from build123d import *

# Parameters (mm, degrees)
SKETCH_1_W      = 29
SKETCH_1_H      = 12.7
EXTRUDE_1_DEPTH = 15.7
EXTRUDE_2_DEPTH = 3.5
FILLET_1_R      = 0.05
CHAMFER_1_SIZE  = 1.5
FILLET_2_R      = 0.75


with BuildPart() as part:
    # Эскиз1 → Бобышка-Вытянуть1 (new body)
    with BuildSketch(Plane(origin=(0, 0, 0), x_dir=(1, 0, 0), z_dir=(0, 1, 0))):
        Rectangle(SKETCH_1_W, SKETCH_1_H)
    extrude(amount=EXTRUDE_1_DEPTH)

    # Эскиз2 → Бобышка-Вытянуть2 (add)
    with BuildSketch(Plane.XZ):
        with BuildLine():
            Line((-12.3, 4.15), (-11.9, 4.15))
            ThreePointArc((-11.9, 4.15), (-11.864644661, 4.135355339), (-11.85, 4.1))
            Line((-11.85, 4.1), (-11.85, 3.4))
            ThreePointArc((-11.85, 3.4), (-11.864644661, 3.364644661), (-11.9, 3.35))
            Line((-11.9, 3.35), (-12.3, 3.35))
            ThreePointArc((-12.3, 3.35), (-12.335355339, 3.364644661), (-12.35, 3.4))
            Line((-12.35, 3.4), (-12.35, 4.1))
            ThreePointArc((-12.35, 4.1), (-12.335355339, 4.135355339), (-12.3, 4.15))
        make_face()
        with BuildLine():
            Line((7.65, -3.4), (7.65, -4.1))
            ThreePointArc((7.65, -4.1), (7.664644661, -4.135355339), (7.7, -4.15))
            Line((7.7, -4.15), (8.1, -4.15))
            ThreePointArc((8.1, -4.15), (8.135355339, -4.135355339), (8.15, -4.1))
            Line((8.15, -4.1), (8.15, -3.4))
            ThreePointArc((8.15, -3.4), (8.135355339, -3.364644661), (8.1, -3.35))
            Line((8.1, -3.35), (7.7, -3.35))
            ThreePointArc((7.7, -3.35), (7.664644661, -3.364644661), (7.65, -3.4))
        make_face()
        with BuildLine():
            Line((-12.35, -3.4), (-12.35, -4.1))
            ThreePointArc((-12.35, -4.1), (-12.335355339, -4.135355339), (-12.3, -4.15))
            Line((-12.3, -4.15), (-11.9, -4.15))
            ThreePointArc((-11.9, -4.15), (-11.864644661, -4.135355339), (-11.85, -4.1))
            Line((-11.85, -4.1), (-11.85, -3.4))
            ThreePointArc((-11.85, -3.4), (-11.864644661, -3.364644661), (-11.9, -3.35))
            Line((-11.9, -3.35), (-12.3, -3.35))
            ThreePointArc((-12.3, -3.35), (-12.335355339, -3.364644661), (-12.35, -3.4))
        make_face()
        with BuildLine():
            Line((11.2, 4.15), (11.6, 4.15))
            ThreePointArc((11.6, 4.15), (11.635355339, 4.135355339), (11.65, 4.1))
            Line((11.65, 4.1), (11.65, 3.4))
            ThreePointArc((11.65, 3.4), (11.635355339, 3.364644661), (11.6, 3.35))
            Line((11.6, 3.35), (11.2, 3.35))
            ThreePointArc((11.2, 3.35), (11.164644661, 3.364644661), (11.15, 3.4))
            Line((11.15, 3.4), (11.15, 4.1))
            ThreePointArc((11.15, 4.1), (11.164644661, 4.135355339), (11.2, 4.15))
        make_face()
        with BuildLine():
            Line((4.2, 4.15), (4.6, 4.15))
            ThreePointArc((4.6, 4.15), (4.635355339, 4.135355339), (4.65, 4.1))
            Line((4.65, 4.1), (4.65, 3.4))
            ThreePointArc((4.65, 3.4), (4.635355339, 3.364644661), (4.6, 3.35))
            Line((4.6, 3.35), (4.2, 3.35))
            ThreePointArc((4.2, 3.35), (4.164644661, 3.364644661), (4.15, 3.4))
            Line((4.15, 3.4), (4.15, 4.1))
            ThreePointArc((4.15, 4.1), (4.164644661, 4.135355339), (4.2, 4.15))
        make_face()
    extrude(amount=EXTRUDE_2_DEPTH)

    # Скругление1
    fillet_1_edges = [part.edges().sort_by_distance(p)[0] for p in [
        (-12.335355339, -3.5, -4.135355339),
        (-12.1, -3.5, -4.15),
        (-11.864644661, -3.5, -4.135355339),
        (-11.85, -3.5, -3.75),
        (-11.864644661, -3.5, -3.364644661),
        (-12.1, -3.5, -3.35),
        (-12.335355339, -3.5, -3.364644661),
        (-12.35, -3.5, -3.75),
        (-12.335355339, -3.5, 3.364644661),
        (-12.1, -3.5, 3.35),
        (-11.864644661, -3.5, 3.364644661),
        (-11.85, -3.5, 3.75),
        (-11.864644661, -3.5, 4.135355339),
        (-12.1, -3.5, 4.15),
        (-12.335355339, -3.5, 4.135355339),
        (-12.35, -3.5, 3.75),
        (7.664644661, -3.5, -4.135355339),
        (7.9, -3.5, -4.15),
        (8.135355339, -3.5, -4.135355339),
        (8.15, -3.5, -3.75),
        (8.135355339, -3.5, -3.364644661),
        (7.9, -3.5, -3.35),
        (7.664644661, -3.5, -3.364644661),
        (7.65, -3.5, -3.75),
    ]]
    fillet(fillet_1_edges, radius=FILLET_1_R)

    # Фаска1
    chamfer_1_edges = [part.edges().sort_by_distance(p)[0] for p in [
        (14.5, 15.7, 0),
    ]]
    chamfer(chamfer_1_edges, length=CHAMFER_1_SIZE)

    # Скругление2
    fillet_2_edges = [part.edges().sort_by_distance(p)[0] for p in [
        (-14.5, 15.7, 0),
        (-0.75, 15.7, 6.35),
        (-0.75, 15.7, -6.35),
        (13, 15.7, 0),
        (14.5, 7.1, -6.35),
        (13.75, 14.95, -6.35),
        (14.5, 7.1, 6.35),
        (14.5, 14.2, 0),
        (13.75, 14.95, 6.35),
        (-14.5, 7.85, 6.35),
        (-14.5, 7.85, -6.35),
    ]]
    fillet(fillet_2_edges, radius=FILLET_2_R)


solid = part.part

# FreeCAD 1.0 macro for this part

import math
import FreeCAD as App
import Part
import Sketcher

V = App.Vector
Q = App.Units.Quantity


def edges_at(feature, points):
    """Names of the edges that pass closest to the given points."""
    edges = feature.Shape.Edges
    near = lambda p: min(range(len(edges)), key=lambda i: edges[i].distToShape(Part.Vertex(*p))[0])
    return sorted({f"Edge{near(p) + 1}" for p in points})

doc = App.newDocument("Part")
body = doc.addObject("PartDesign::Body", "Body")

# Sketch on XZ plane
sketch1 = body.newObject("Sketcher::SketchObject", "Sketch")
sketch1.AttachmentSupport = (doc.getObject("XZ_Plane"), [""])
sketch1.MapMode = "FlatFace"
sketch1.addGeometry([
    Part.LineSegment(V(-14.5, -6.35, 0), V(-14.5, 6.35, 0)),
    Part.LineSegment(V(-14.5, 6.35, 0), V(14.5, 6.35, 0)),
    Part.LineSegment(V(14.5, 6.35, 0), V(14.5, -6.35, 0)),
    Part.LineSegment(V(14.5, -6.35, 0), V(-14.5, -6.35, 0)),
], False)
sketch1.addConstraint([
    Sketcher.Constraint("Coincident", 0, 2, 1, 1),
    Sketcher.Constraint("Coincident", 1, 2, 2, 1),
    Sketcher.Constraint("Coincident", 2, 2, 3, 1),
    Sketcher.Constraint("Coincident", 3, 2, 0, 1),
    Sketcher.Constraint("Vertical", 0),
    Sketcher.Constraint("Horizontal", 1),
    Sketcher.Constraint("Vertical", 2),
    Sketcher.Constraint("Horizontal", 3),
    Sketcher.Constraint("Symmetric", 0, 2, 2, 2, -1, 1),
    Sketcher.Constraint("DistanceX", 1, 1, 1, 2, Q("29 mm")),
    Sketcher.Constraint("DistanceY", 0, 1, 0, 2, Q("12.7 mm")),
])
pad1 = body.newObject("PartDesign::Pad", "Pad")
pad1.Profile = sketch1
pad1.Length = 15.7
pad1.Reversed = True

# Sketch on XZ plane
sketch2 = body.newObject("Sketcher::SketchObject", "Sketch001")
sketch2.AttachmentSupport = (doc.getObject("XZ_Plane"), [""])
sketch2.MapMode = "FlatFace"
sketch2.addGeometry([
    Part.LineSegment(V(-11.9, 4.15, 0), V(-12.3, 4.15, 0)),  # 0
    Part.ArcOfCircle(Part.Circle(V(-12.3, 4.1, 0), V(0, 0, 1), 0.05), math.radians(90), math.radians(180)),  # 1
    Part.LineSegment(V(-12.35, 4.1, 0), V(-12.35, 3.4, 0)),  # 2
    Part.ArcOfCircle(Part.Circle(V(-12.3, 3.4, 0), V(0, 0, 1), 0.05), math.radians(180), math.radians(270)),  # 3
    Part.LineSegment(V(-12.3, 3.35, 0), V(-11.9, 3.35, 0)),  # 4
    Part.ArcOfCircle(Part.Circle(V(-11.9, 3.4, 0), V(0, 0, 1), 0.05), math.radians(-90), math.radians(0)),  # 5
    Part.LineSegment(V(-11.85, 3.4, 0), V(-11.85, 4.1, 0)),  # 6
    Part.ArcOfCircle(Part.Circle(V(-11.9, 4.1, 0), V(0, 0, 1), 0.05), math.radians(0), math.radians(90)),  # 7
    Part.LineSegment(V(7.65, -3.4, 0), V(7.65, -4.1, 0)),  # 8
    Part.ArcOfCircle(Part.Circle(V(7.7, -4.1, 0), V(0, 0, 1), 0.05), math.radians(180), math.radians(270)),  # 9
    Part.LineSegment(V(7.7, -4.15, 0), V(8.1, -4.15, 0)),  # 10
    Part.ArcOfCircle(Part.Circle(V(8.1, -4.1, 0), V(0, 0, 1), 0.05), math.radians(-90), math.radians(0)),  # 11
    Part.LineSegment(V(8.15, -4.1, 0), V(8.15, -3.4, 0)),  # 12
    Part.ArcOfCircle(Part.Circle(V(8.1, -3.4, 0), V(0, 0, 1), 0.05), math.radians(0), math.radians(90)),  # 13
    Part.LineSegment(V(8.1, -3.35, 0), V(7.7, -3.35, 0)),  # 14
    Part.ArcOfCircle(Part.Circle(V(7.7, -3.4, 0), V(0, 0, 1), 0.05), math.radians(90), math.radians(180)),  # 15
    Part.LineSegment(V(-12.35, -3.4, 0), V(-12.35, -4.1, 0)),  # 16
    Part.ArcOfCircle(Part.Circle(V(-12.3, -4.1, 0), V(0, 0, 1), 0.05), math.radians(180), math.radians(270)),  # 17
    Part.LineSegment(V(-12.3, -4.15, 0), V(-11.9, -4.15, 0)),  # 18
    Part.ArcOfCircle(Part.Circle(V(-11.9, -4.1, 0), V(0, 0, 1), 0.05), math.radians(-90), math.radians(0)),  # 19
    Part.LineSegment(V(-11.85, -4.1, 0), V(-11.85, -3.4, 0)),  # 20
    Part.ArcOfCircle(Part.Circle(V(-11.9, -3.4, 0), V(0, 0, 1), 0.05), math.radians(0), math.radians(90)),  # 21
    Part.LineSegment(V(-11.9, -3.35, 0), V(-12.3, -3.35, 0)),  # 22
    Part.ArcOfCircle(Part.Circle(V(-12.3, -3.4, 0), V(0, 0, 1), 0.05), math.radians(90), math.radians(180)),  # 23
    Part.LineSegment(V(11.6, 4.15, 0), V(11.2, 4.15, 0)),  # 24
    Part.ArcOfCircle(Part.Circle(V(11.2, 4.1, 0), V(0, 0, 1), 0.05), math.radians(90), math.radians(180)),  # 25
    Part.LineSegment(V(11.15, 4.1, 0), V(11.15, 3.4, 0)),  # 26
    Part.ArcOfCircle(Part.Circle(V(11.2, 3.4, 0), V(0, 0, 1), 0.05), math.radians(180), math.radians(270)),  # 27
    Part.LineSegment(V(11.2, 3.35, 0), V(11.6, 3.35, 0)),  # 28
    Part.ArcOfCircle(Part.Circle(V(11.6, 3.4, 0), V(0, 0, 1), 0.05), math.radians(-90), math.radians(0)),  # 29
    Part.LineSegment(V(11.65, 3.4, 0), V(11.65, 4.1, 0)),  # 30
    Part.ArcOfCircle(Part.Circle(V(11.6, 4.1, 0), V(0, 0, 1), 0.05), math.radians(0), math.radians(90)),  # 31
    Part.LineSegment(V(4.6, 4.15, 0), V(4.2, 4.15, 0)),  # 32
    Part.ArcOfCircle(Part.Circle(V(4.2, 4.1, 0), V(0, 0, 1), 0.05), math.radians(90), math.radians(180)),  # 33
    Part.LineSegment(V(4.15, 4.1, 0), V(4.15, 3.4, 0)),  # 34
    Part.ArcOfCircle(Part.Circle(V(4.2, 3.4, 0), V(0, 0, 1), 0.05), math.radians(180), math.radians(270)),  # 35
    Part.LineSegment(V(4.2, 3.35, 0), V(4.6, 3.35, 0)),  # 36
    Part.ArcOfCircle(Part.Circle(V(4.6, 3.4, 0), V(0, 0, 1), 0.05), math.radians(-90), math.radians(0)),  # 37
    Part.LineSegment(V(4.65, 3.4, 0), V(4.65, 4.1, 0)),  # 38
    Part.ArcOfCircle(Part.Circle(V(4.6, 4.1, 0), V(0, 0, 1), 0.05), math.radians(0), math.radians(90)),  # 39
], False)
sketch2.addConstraint([
    Sketcher.Constraint("Tangent", 0, 2, 1, 1),
    Sketcher.Constraint("Tangent", 1, 2, 2, 1),
    Sketcher.Constraint("Tangent", 2, 2, 3, 1),
    Sketcher.Constraint("Tangent", 3, 2, 4, 1),
    Sketcher.Constraint("Tangent", 4, 2, 5, 1),
    Sketcher.Constraint("Tangent", 5, 2, 6, 1),
    Sketcher.Constraint("Tangent", 6, 2, 7, 1),
    Sketcher.Constraint("Tangent", 7, 2, 0, 1),
    Sketcher.Constraint("Tangent", 8, 2, 9, 1),
    Sketcher.Constraint("Tangent", 9, 2, 10, 1),
    Sketcher.Constraint("Tangent", 10, 2, 11, 1),
    Sketcher.Constraint("Tangent", 11, 2, 12, 1),
    Sketcher.Constraint("Tangent", 12, 2, 13, 1),
    Sketcher.Constraint("Tangent", 13, 2, 14, 1),
    Sketcher.Constraint("Tangent", 14, 2, 15, 1),
    Sketcher.Constraint("Tangent", 15, 2, 8, 1),
    Sketcher.Constraint("Tangent", 16, 2, 17, 1),
    Sketcher.Constraint("Tangent", 17, 2, 18, 1),
    Sketcher.Constraint("Tangent", 18, 2, 19, 1),
    Sketcher.Constraint("Tangent", 19, 2, 20, 1),
    Sketcher.Constraint("Tangent", 20, 2, 21, 1),
    Sketcher.Constraint("Tangent", 21, 2, 22, 1),
    Sketcher.Constraint("Tangent", 22, 2, 23, 1),
    Sketcher.Constraint("Tangent", 23, 2, 16, 1),
    Sketcher.Constraint("Tangent", 24, 2, 25, 1),
    Sketcher.Constraint("Tangent", 25, 2, 26, 1),
    Sketcher.Constraint("Tangent", 26, 2, 27, 1),
    Sketcher.Constraint("Tangent", 27, 2, 28, 1),
    Sketcher.Constraint("Tangent", 28, 2, 29, 1),
    Sketcher.Constraint("Tangent", 29, 2, 30, 1),
    Sketcher.Constraint("Tangent", 30, 2, 31, 1),
    Sketcher.Constraint("Tangent", 31, 2, 24, 1),
    Sketcher.Constraint("Tangent", 32, 2, 33, 1),
    Sketcher.Constraint("Tangent", 33, 2, 34, 1),
    Sketcher.Constraint("Tangent", 34, 2, 35, 1),
    Sketcher.Constraint("Tangent", 35, 2, 36, 1),
    Sketcher.Constraint("Tangent", 36, 2, 37, 1),
    Sketcher.Constraint("Tangent", 37, 2, 38, 1),
    Sketcher.Constraint("Tangent", 38, 2, 39, 1),
    Sketcher.Constraint("Tangent", 39, 2, 32, 1),
    Sketcher.Constraint("Horizontal", 0),
    Sketcher.Constraint("Vertical", 2),
    Sketcher.Constraint("Horizontal", 4),
    Sketcher.Constraint("Vertical", 6),
    Sketcher.Constraint("Vertical", 8),
    Sketcher.Constraint("Horizontal", 10),
    Sketcher.Constraint("Vertical", 12),
    Sketcher.Constraint("Horizontal", 14),
    Sketcher.Constraint("Vertical", 16),
    Sketcher.Constraint("Horizontal", 18),
    Sketcher.Constraint("Vertical", 20),
    Sketcher.Constraint("Horizontal", 22),
    Sketcher.Constraint("Horizontal", 24),
    Sketcher.Constraint("Vertical", 26),
    Sketcher.Constraint("Horizontal", 28),
    Sketcher.Constraint("Vertical", 30),
    Sketcher.Constraint("Horizontal", 32),
    Sketcher.Constraint("Vertical", 34),
    Sketcher.Constraint("Horizontal", 36),
    Sketcher.Constraint("Vertical", 38),
    Sketcher.Constraint("Equal", 1, 3),
    Sketcher.Constraint("Equal", 3, 5),
    Sketcher.Constraint("Equal", 5, 7),
    Sketcher.Constraint("Equal", 7, 9),
    Sketcher.Constraint("Equal", 9, 11),
    Sketcher.Constraint("Equal", 11, 13),
    Sketcher.Constraint("Equal", 13, 15),
    Sketcher.Constraint("Equal", 15, 17),
    Sketcher.Constraint("Equal", 17, 19),
    Sketcher.Constraint("Equal", 19, 21),
    Sketcher.Constraint("Equal", 21, 23),
    Sketcher.Constraint("Equal", 23, 25),
    Sketcher.Constraint("Equal", 25, 27),
    Sketcher.Constraint("Equal", 27, 29),
    Sketcher.Constraint("Equal", 29, 31),
    Sketcher.Constraint("Equal", 31, 33),
    Sketcher.Constraint("Equal", 33, 35),
    Sketcher.Constraint("Equal", 35, 37),
    Sketcher.Constraint("Equal", 37, 39),
    Sketcher.Constraint("Symmetric", 1, 3, 17, 3, -1),
    Sketcher.Constraint("Symmetric", 5, 3, 21, 3, -1),
    Sketcher.Constraint("Horizontal", 11, 3, 17, 3),
    Sketcher.Constraint("Horizontal", 15, 3, 21, 3),
    Sketcher.Constraint("Horizontal", 7, 3, 25, 3),
    Sketcher.Constraint("Horizontal", 5, 3, 27, 3),
    Sketcher.Constraint("Horizontal", 31, 3, 33, 3),
    Sketcher.Constraint("Horizontal", 29, 3, 35, 3),
    Sketcher.Constraint("Equal", 4, 10),
    Sketcher.Constraint("Equal", 22, 24),
    Sketcher.Constraint("Equal", 28, 32),
    Sketcher.Constraint("Radius", 1, Q("0.05 mm")),
    Sketcher.Constraint("DistanceX", 0, 2, 0, 1, Q("0.4 mm")),
    Sketcher.Constraint("DistanceY", 2, 2, 2, 1, Q("0.7 mm")),
    Sketcher.Constraint("DistanceX", 3, 3, 9, 3, Q("20 mm")),
    Sketcher.Constraint("DistanceX", 33, 3, 25, 3, Q("7 mm")),
    Sketcher.Constraint("DistanceX", 1, 3, -1, 1, Q("12.3 mm")),
    Sketcher.Constraint("DistanceY", -1, 1, 1, 3, Q("4.1 mm")),
    Sketcher.Constraint("DistanceX", -1, 1, 25, 3, Q("11.2 mm")),
])
pad2 = body.newObject("PartDesign::Pad", "Pad001")
pad2.Profile = sketch2
pad2.Length = 3.5
doc.recompute()

fillet = body.newObject("PartDesign::Fillet", "Fillet")
fillet.Base = (pad2, edges_at(pad2, [
    (-12.335, -3.5, -4.135),
    (-12.1, -3.5, -4.15),
    (-11.865, -3.5, -4.135),
    (-11.85, -3.5, -3.75),
    (-11.865, -3.5, -3.365),
    (-12.1, -3.5, -3.35),
    (-12.335, -3.5, -3.365),
    (-12.35, -3.5, -3.75),
    (-12.335, -3.5, 3.365),
    (-12.1, -3.5, 3.35),
    (-11.865, -3.5, 3.365),
    (-11.85, -3.5, 3.75),
    (-11.865, -3.5, 4.135),
    (-12.1, -3.5, 4.15),
    (-12.335, -3.5, 4.135),
    (-12.35, -3.5, 3.75),
    (7.665, -3.5, -4.135),
    (7.9, -3.5, -4.15),
    (8.135, -3.5, -4.135),
    (8.15, -3.5, -3.75),
    (8.135, -3.5, -3.365),
    (7.9, -3.5, -3.35),
    (7.665, -3.5, -3.365),
    (7.65, -3.5, -3.75),
]))
fillet.Radius = 0.05
doc.recompute()

chamfer = body.newObject("PartDesign::Chamfer", "Chamfer")
chamfer.Base = (fillet, edges_at(fillet, [(14.5, 15.7, 0)]))
chamfer.Size = 1.5
doc.recompute()

fillet2 = body.newObject("PartDesign::Fillet", "Fillet001")
fillet2.Base = (chamfer, edges_at(chamfer, [
    (-14.5, 15.7, 0),
    (-0.75, 15.7, 6.35),
    (-0.75, 15.7, -6.35),
    (13, 15.7, 0),
    (14.5, 7.1, -6.35),
    (13.75, 14.95, -6.35),
    (14.5, 7.1, 6.35),
    (14.5, 14.2, 0),
    (13.75, 14.95, 6.35),
    (-14.5, 7.85, 6.35),
    (-14.5, 7.85, -6.35),
]))
fillet2.Radius = 0.75

doc.recompute()
